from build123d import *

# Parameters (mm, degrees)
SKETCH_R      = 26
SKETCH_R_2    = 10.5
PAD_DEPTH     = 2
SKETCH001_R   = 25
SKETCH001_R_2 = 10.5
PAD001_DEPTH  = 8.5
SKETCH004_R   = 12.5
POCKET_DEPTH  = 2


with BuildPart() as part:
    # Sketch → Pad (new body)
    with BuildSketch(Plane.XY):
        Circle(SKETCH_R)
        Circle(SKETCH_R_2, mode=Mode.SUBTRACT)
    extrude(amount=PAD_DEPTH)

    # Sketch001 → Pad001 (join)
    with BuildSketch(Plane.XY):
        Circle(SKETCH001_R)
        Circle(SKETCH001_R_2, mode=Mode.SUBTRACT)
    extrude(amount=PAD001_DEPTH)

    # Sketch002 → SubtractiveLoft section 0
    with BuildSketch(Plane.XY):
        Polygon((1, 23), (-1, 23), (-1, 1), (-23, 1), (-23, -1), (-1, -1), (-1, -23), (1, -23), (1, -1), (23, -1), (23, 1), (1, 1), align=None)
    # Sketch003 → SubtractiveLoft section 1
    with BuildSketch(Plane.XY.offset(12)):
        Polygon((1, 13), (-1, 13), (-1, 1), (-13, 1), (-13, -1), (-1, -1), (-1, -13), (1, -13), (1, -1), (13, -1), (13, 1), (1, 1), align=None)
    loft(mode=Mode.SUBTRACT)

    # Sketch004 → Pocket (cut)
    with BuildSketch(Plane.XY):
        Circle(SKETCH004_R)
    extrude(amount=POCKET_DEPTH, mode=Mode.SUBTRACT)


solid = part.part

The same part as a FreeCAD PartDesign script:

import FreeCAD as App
import Part
import Sketcher

V = App.Vector


def add_polygon(sketch, points):
    """Adds a closed chain of lines whose ends are joined by coincident constraints."""
    first, n = sketch.GeometryCount, len(points)
    for a, b in zip(points, points[1:] + points[:1]):
        sketch.addGeometry(Part.LineSegment(App.Vector(*a, 0), App.Vector(*b, 0)), False)
    for i in range(n):
        sketch.addConstraint(Sketcher.Constraint("Coincident", first + i, 2, first + (i + 1) % n, 1))

doc = App.newDocument("Part")
body = doc.addObject("PartDesign::Body", "Body")

# Sketch on XY plane
sketch1 = body.newObject("Sketcher::SketchObject", "Sketch")
sketch1.AttachmentSupport = (doc.getObject("XY_Plane"), [""])
sketch1.MapMode = "FlatFace"
sketch1.addGeometry([
    Part.Circle(V(0, 0, 0), V(0, 0, 1), 26),
    Part.Circle(V(0, 0, 0), V(0, 0, 1), 10.5),
], False)
sketch1.addConstraint([
    Sketcher.Constraint("Coincident", 0, 3, -1, 1),
    Sketcher.Constraint("Coincident", 1, 3, -1, 1),
    Sketcher.Constraint("Diameter", 0, 52.0),
    Sketcher.Constraint("Diameter", 1, 21.0),
])
pad1 = body.newObject("PartDesign::Pad", "Pad")
pad1.Profile = sketch1
pad1.Length = 2

# Sketch on XY plane
sketch2 = body.newObject("Sketcher::SketchObject", "Sketch001")
sketch2.AttachmentSupport = (doc.getObject("XY_Plane"), [""])
sketch2.MapMode = "FlatFace"
sketch2.addGeometry([
    Part.Circle(V(0, 0, 0), V(0, 0, 1), 25),
    Part.Circle(V(0, 0, 0), V(0, 0, 1), 10.5),
], False)
sketch2.addConstraint([
    Sketcher.Constraint("Coincident", 0, 3, -1, 1),
    Sketcher.Constraint("Coincident", 1, 3, -1, 1),
    Sketcher.Constraint("Diameter", 0, 50.0),
    Sketcher.Constraint("Diameter", 1, 21.0),
])
pad2 = body.newObject("PartDesign::Pad", "Pad001")
pad2.Profile = sketch2
pad2.Length = 8.5

# Sketch on XY plane
sketch3 = body.newObject("Sketcher::SketchObject", "Sketch002")
sketch3.AttachmentSupport = (doc.getObject("XY_Plane"), [""])
sketch3.MapMode = "FlatFace"
add_polygon(sketch3, [(1, 23), (-1, 23), (-1, 1), (-23, 1), (-23, -1), (-1, -1), (-1, -23), (1, -23), (1, -1), (23, -1), (23, 1), (1, 1)])  # lines 0-11
sketch3.addConstraint([
    Sketcher.Constraint("Horizontal", 0),
    Sketcher.Constraint("Vertical", 1),
    Sketcher.Constraint("Horizontal", 2),
    Sketcher.Constraint("Vertical", 3),
    Sketcher.Constraint("Horizontal", 4),
    Sketcher.Constraint("Vertical", 5),
    Sketcher.Constraint("Horizontal", 6),
    Sketcher.Constraint("Vertical", 7),
    Sketcher.Constraint("Horizontal", 8),
    Sketcher.Constraint("Vertical", 9),
    Sketcher.Constraint("Horizontal", 10),
    Sketcher.Constraint("Vertical", 11),
    Sketcher.Constraint("Symmetric", 0, 2, 6, 2, -1, 1),
    Sketcher.Constraint("Symmetric", 2, 2, 8, 2, -1, 1),
    Sketcher.Constraint("Symmetric", 4, 2, 10, 2, -1, 1),
    Sketcher.Constraint("Symmetric", 4, 2, 7, 2, -2),
    Sketcher.Constraint("Equal", 10, 1),
    Sketcher.Constraint("Equal", 6, 3),
    Sketcher.Constraint("DistanceX", 0, 2, 0, 1, 2.0),
    Sketcher.Constraint("DistanceX", 2, 2, 2, 1, 22.0),
])

# Sketch on XY plane
sketch4 = body.newObject("Sketcher::SketchObject", "Sketch003")
sketch4.AttachmentSupport = (doc.getObject("XY_Plane"), [""])
sketch4.MapMode = "FlatFace"
sketch4.AttachmentOffset = App.Placement(V(0, 0, 12), App.Rotation())
add_polygon(sketch4, [(1, 13), (-1, 13), (-1, 1), (-13, 1), (-13, -1), (-1, -1), (-1, -13), (1, -13), (1, -1), (13, -1), (13, 1), (1, 1)])  # lines 0-11
sketch4.addConstraint([
    Sketcher.Constraint("Horizontal", 0),
    Sketcher.Constraint("Vertical", 1),
    Sketcher.Constraint("Horizontal", 2),
    Sketcher.Constraint("Vertical", 3),
    Sketcher.Constraint("Horizontal", 4),
    Sketcher.Constraint("Vertical", 5),
    Sketcher.Constraint("Horizontal", 6),
    Sketcher.Constraint("Vertical", 7),
    Sketcher.Constraint("Horizontal", 8),
    Sketcher.Constraint("Vertical", 9),
    Sketcher.Constraint("Horizontal", 10),
    Sketcher.Constraint("Vertical", 11),
    Sketcher.Constraint("Symmetric", 0, 2, 6, 2, -1, 1),
    Sketcher.Constraint("Symmetric", 2, 2, 8, 2, -1, 1),
    Sketcher.Constraint("Symmetric", 4, 2, 10, 2, -1, 1),
    Sketcher.Constraint("Symmetric", 4, 2, 7, 2, -2),
    Sketcher.Constraint("Equal", 10, 1),
    Sketcher.Constraint("Equal", 6, 3),
    Sketcher.Constraint("DistanceX", 0, 2, 0, 1, 2.0),
    Sketcher.Constraint("DistanceX", 2, 2, 2, 1, 12.0),
])

subtractiveloft = body.newObject("PartDesign::SubtractiveLoft", "SubtractiveLoft")
subtractiveloft.Profile = sketch3
subtractiveloft.Sections = [sketch4]

# Sketch on XY plane
sketch5 = body.newObject("Sketcher::SketchObject", "Sketch004")
sketch5.AttachmentSupport = (doc.getObject("XY_Plane"), [""])
sketch5.MapMode = "FlatFace"
sketch5.addGeometry(Part.Circle(V(0, 0, 0), V(0, 0, 1), 12.5), False)
sketch5.addConstraint([
    Sketcher.Constraint("Coincident", 0, 3, -1, 1),
    Sketcher.Constraint("Diameter", 0, 25.0),
])
pocket1 = body.newObject("PartDesign::Pocket", "Pocket")
pocket1.Profile = sketch5
pocket1.Length = 2
pocket1.Reversed = True

doc.recompute()
